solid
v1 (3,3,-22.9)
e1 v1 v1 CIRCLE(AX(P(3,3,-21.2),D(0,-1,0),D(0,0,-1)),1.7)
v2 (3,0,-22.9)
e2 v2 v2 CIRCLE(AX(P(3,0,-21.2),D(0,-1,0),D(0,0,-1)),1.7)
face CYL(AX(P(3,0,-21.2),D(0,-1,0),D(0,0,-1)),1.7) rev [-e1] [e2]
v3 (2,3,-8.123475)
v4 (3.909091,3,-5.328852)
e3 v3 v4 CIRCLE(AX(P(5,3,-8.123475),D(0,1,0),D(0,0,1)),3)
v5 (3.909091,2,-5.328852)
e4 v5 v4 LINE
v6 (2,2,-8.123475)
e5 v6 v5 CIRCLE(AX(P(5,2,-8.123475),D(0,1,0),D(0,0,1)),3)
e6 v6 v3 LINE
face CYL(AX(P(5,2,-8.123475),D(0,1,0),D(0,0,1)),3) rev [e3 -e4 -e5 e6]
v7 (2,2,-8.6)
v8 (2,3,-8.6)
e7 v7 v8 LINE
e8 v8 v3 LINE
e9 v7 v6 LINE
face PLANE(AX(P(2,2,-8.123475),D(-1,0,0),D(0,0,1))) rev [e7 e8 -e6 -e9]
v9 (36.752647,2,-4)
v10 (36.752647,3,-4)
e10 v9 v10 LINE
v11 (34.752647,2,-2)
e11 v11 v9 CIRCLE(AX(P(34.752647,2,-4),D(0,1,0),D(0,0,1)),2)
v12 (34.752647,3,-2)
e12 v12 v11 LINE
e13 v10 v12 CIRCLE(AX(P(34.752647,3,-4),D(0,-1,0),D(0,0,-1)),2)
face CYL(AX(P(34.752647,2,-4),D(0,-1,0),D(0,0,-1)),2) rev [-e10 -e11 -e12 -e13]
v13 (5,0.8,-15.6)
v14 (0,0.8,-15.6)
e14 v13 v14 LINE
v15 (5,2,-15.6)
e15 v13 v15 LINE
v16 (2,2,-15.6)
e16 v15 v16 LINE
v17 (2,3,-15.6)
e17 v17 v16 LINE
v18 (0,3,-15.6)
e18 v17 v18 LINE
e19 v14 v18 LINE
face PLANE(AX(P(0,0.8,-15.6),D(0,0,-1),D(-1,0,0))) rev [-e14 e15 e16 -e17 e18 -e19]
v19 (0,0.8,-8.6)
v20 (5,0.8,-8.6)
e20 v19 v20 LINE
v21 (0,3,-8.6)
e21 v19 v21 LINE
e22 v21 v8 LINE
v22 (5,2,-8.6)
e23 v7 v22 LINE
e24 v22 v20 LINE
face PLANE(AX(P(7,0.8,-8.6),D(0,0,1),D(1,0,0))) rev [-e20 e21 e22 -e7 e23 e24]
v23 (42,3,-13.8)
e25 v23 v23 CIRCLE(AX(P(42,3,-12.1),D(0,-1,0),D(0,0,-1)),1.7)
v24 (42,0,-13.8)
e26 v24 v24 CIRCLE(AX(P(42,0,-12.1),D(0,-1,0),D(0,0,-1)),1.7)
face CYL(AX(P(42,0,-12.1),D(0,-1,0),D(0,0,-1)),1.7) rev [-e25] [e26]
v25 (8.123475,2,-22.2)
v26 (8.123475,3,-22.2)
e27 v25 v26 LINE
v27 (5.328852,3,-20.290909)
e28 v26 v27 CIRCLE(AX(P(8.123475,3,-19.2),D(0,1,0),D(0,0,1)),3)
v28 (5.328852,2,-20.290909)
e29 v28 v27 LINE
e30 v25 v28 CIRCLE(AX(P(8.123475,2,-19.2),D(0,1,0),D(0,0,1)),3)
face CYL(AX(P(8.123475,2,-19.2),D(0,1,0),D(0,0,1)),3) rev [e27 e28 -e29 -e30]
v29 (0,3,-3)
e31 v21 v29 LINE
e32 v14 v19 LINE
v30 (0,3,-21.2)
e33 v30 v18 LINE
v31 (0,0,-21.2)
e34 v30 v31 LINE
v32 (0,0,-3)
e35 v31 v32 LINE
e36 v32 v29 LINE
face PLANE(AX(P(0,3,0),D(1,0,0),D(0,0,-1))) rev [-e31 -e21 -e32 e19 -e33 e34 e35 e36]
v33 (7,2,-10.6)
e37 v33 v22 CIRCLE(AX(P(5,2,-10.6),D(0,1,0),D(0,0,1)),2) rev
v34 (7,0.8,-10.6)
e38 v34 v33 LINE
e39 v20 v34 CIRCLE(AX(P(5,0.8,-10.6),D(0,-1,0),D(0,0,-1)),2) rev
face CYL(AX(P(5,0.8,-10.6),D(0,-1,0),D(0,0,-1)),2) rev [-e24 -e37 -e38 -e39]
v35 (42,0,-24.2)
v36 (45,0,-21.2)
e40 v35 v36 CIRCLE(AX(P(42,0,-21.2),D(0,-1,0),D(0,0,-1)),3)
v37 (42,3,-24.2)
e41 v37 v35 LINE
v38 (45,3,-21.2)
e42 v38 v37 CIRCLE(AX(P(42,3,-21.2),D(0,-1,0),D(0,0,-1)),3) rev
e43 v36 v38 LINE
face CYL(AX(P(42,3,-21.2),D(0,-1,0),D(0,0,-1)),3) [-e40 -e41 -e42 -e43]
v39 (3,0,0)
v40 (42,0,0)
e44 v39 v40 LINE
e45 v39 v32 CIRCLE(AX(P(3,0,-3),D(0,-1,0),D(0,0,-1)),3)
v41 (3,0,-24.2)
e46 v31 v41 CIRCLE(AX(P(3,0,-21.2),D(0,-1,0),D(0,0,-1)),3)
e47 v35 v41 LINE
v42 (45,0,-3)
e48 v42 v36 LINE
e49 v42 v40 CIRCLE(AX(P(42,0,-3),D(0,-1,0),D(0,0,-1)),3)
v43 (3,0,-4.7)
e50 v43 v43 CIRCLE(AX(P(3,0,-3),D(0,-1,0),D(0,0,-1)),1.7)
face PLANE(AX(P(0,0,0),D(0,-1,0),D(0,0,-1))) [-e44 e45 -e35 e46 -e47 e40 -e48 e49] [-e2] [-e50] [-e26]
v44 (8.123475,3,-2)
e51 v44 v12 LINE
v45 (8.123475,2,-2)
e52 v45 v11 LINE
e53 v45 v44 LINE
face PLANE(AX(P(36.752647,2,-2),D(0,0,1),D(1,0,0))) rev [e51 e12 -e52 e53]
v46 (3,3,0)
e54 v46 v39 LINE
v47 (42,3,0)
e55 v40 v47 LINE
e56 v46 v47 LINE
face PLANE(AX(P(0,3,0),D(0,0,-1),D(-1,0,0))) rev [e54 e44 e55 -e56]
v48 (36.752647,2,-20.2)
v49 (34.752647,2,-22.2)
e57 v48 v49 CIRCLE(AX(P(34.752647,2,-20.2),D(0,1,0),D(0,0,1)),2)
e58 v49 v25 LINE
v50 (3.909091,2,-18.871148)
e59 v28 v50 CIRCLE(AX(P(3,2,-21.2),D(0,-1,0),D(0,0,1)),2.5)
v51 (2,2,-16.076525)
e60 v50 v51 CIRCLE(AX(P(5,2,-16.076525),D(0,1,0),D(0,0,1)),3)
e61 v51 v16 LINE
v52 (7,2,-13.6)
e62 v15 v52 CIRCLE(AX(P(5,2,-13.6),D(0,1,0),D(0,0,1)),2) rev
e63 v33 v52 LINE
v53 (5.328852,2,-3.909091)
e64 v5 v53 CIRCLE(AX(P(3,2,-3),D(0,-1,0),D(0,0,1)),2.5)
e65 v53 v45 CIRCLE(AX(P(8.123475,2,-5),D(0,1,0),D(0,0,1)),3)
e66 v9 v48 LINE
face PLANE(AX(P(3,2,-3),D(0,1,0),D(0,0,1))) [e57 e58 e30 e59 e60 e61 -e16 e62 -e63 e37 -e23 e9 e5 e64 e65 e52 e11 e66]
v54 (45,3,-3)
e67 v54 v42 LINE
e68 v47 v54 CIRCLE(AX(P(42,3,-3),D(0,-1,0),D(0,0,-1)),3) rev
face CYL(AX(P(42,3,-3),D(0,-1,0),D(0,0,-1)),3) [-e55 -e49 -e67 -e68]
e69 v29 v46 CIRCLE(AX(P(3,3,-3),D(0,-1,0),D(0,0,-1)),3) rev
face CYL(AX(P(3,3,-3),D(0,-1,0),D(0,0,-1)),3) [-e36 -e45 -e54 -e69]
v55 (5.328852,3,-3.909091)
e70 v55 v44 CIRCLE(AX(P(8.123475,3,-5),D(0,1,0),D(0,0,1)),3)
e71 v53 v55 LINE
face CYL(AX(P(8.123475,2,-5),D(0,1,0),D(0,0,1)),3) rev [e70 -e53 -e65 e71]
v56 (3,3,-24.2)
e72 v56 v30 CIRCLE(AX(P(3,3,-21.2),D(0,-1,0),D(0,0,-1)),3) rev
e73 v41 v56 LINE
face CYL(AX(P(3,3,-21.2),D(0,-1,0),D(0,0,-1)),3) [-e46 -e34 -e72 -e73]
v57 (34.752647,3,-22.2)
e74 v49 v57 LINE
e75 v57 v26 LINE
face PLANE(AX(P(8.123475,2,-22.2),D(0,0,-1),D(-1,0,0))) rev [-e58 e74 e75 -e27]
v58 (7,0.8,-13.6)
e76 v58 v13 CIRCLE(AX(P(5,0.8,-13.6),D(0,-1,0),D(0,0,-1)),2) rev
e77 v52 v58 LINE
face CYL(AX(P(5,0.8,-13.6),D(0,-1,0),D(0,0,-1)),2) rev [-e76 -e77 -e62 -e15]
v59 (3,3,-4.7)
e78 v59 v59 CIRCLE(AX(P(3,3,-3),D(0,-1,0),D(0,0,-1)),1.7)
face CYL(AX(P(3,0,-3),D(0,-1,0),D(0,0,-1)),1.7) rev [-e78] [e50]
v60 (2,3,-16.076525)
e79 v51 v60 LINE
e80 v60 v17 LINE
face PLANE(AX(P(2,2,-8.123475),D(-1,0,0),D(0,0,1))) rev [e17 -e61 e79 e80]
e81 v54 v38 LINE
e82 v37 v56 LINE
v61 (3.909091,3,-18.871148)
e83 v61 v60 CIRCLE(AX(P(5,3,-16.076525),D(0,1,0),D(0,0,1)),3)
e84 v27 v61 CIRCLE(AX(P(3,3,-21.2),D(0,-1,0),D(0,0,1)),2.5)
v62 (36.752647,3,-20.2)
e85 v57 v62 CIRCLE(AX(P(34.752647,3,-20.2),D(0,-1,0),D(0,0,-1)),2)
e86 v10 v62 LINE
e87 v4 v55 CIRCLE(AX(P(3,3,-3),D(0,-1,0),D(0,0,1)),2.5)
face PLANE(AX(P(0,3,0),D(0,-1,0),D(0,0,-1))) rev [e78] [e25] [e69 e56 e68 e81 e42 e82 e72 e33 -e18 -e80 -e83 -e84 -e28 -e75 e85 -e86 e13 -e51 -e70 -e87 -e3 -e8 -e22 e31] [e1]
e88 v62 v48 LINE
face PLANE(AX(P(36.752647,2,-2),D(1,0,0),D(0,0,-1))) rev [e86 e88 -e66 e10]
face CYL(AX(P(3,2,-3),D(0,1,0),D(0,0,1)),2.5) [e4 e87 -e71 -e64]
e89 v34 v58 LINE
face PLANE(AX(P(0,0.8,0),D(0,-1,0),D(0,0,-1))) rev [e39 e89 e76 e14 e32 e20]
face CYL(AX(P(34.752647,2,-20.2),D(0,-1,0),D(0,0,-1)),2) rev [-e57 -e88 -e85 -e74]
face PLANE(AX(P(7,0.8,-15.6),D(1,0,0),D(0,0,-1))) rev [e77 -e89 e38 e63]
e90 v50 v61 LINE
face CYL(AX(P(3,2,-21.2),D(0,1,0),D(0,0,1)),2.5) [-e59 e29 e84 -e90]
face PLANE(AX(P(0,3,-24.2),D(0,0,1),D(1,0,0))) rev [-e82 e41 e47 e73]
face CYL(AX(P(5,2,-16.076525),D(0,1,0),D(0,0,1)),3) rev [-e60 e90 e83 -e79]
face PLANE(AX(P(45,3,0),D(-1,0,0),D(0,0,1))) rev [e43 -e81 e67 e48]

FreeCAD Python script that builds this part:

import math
import FreeCAD as App
import Part
import Sketcher
from FreeCAD import Vector
Q = App.Units.Quantity


def edges_at(feature, points):
    """Names of the edges that pass closest to the given points."""
    edges = feature.Shape.Edges
    near = lambda p: min(range(len(edges)), key=lambda i: edges[i].distToShape(Part.Vertex(*p))[0])
    return sorted({f"Edge{near(p) + 1}" for p in points})


def add_polygon(sketch, points):
    """Adds a closed chain of lines whose ends are joined by coincident constraints."""
    first, n = sketch.GeometryCount, len(points)
    for a, b in zip(points, points[1:] + points[:1]):
        sketch.addGeometry(Part.LineSegment(App.Vector(*a, 0), App.Vector(*b, 0)), False)
    for i in range(n):
        sketch.addConstraint(Sketcher.Constraint("Coincident", first + i, 2, first + (i + 1) % n, 1))

doc = App.newDocument("Part")
body = doc.addObject("PartDesign::Body", "Body")

sketch1 = body.newObject("Sketcher::SketchObject", "Sketch")
sketch1.AttachmentSupport = (doc.getObject("XZ_Plane"), [""])
sketch1.MapMode = "FlatFace"
add_polygon(sketch1, [(0, -24), (0, 0), (45, 0), (45, -24)])
sketch1.addConstraint(Sketcher.Constraint("Vertical", 0))
sketch1.addConstraint(Sketcher.Constraint("Horizontal", 1))
sketch1.addConstraint(Sketcher.Constraint("Vertical", 2))
sketch1.addConstraint(Sketcher.Constraint("Horizontal", 3))
sketch1.addConstraint(Sketcher.Constraint("Coincident", 0, 2, -1, 1))
sketch1.addConstraint(Sketcher.Constraint("DistanceX", 1, 1, 1, 2, Q("45 mm")))
sketch1.addConstraint(Sketcher.Constraint("DistanceY", 0, 1, 0, 2, Q("24.2 mm")))
pad1 = body.newObject("PartDesign::Pad", "Pad")
pad1.Profile = sketch1
pad1.Length = 3
pad1.Reversed = True
doc.recompute()

fillet = body.newObject("PartDesign::Fillet", "Fillet")
fillet.Base = (pad1, edges_at(pad1, [
    (0, 1.5, -24.2),
    (45, 1.5, -24.2),
    (45, 1.5, 0),
    (0, 1.5, 0),
]))
fillet.Radius = 3

sketch2 = body.newObject("Sketcher::SketchObject", "Sketch001")
sketch2.AttachmentSupport = (doc.getObject("XZ_Plane"), [""])
sketch2.MapMode = "FlatFace"
sketch2.addGeometry(Part.Circle(Vector(3, -21.2, 0), Vector(0, 0, 1), 1.7), False)
sketch2.addGeometry(Part.Circle(Vector(3, -3, 0), Vector(0, 0, 1), 1.7), False)
sketch2.addGeometry(Part.Circle(Vector(42, -12.1, 0), Vector(0, 0, 1), 1.7), False)
sketch2.addConstraint(Sketcher.Constraint("Equal", 0, 1))
sketch2.addConstraint(Sketcher.Constraint("Equal", 1, 2))
sketch2.addConstraint(Sketcher.Constraint("Vertical", 0, 3, 1, 3))
sketch2.addConstraint(Sketcher.Constraint("Diameter", 0, Q("3.4 mm")))
sketch2.addConstraint(Sketcher.Constraint("DistanceX", -1, 1, 0, 3, Q("3 mm")))
sketch2.addConstraint(Sketcher.Constraint("DistanceY", 1, 3, -1, 1, Q("3 mm")))
sketch2.addConstraint(Sketcher.Constraint("DistanceX", -1, 1, 2, 3, Q("42 mm")))
sketch2.addConstraint(Sketcher.Constraint("DistanceY", 0, 3, -1, 1, Q("21.2 mm")))
sketch2.addConstraint(Sketcher.Constraint("DistanceY", 2, 3, -1, 1, Q("12.1 mm")))
doc.recompute()
hole = body.newObject("PartDesign::Hole", "Hole")
hole.Profile = sketch2
hole.ThreadType = "None"
hole.Diameter = 3.4
hole.DepthType = "Dimension"
hole.Depth = 3
hole.DrillPoint = "Angled"
hole.DrillPointAngle = 118

sketch3 = body.newObject("Sketcher::SketchObject", "Sketch002")
sketch3.AttachmentSupport = (doc.getObject("XZ_Plane"), [""])
sketch3.MapMode = "FlatFace"
sketch3.AttachmentOffset = App.Placement(Vector(0, 0, -3), App.Rotation())
sketch3.addGeometry(Part.LineSegment(Vector(2, -16.1, 0), Vector(2, -8.1, 0)), False)
sketch3.addGeometry(Part.ArcOfCircle(Part.Circle(Vector(5, -8.1, 0), Vector(0, 0, 1), 3), math.radians(111), math.radians(180)), False)
sketch3.addGeometry(Part.ArcOfCircle(Part.Circle(Vector(3, -3, 0), Vector(0, 0, 1), 2.5), math.radians(-69), math.radians(-21)), False)
sketch3.addGeometry(Part.ArcOfCircle(Part.Circle(Vector(8.1, -5, 0), Vector(0, 0, 1), 3), math.radians(90), math.radians(159)), False)
sketch3.addGeometry(Part.LineSegment(Vector(8.1, -2, 0), Vector(36.8, -2, 0)), False)
sketch3.addGeometry(Part.LineSegment(Vector(36.8, -2, 0), Vector(36.8, -22.2, 0)), False)
sketch3.addGeometry(Part.LineSegment(Vector(36.8, -22.2, 0), Vector(8.1, -22.2, 0)), False)
sketch3.addGeometry(Part.ArcOfCircle(Part.Circle(Vector(8.1, -19.2, 0), Vector(0, 0, 1), 3), math.radians(-159), math.radians(-90)), False)
sketch3.addGeometry(Part.ArcOfCircle(Part.Circle(Vector(3, -21.2, 0), Vector(0, 0, 1), 2.5), math.radians(21), math.radians(69)), False)
sketch3.addGeometry(Part.ArcOfCircle(Part.Circle(Vector(5, -16.1, 0), Vector(0, 0, 1), 3), math.radians(180), math.radians(249)), False)
sketch3.addConstraint(Sketcher.Constraint("Tangent", 0, 2, 1, 2))
sketch3.addConstraint(Sketcher.Constraint("Tangent", 1, 1, 2, 1))
sketch3.addConstraint(Sketcher.Constraint("Tangent", 2, 2, 3, 2))
sketch3.addConstraint(Sketcher.Constraint("Tangent", 3, 1, 4, 1))
sketch3.addConstraint(Sketcher.Constraint("Coincident", 4, 2, 5, 1))
sketch3.addConstraint(Sketcher.Constraint("Coincident", 5, 2, 6, 1))
sketch3.addConstraint(Sketcher.Constraint("Tangent", 6, 2, 7, 2))
sketch3.addConstraint(Sketcher.Constraint("Tangent", 7, 1, 8, 1))
sketch3.addConstraint(Sketcher.Constraint("Tangent", 8, 2, 9, 2))
sketch3.addConstraint(Sketcher.Constraint("Tangent", 9, 1, 0, 1))
sketch3.addConstraint(Sketcher.Constraint("Vertical", 0))
sketch3.addConstraint(Sketcher.Constraint("Horizontal", 4))
sketch3.addConstraint(Sketcher.Constraint("Vertical", 5))
sketch3.addConstraint(Sketcher.Constraint("Horizontal", 6))
sketch3.addConstraint(Sketcher.Constraint("Equal", 1, 3))
sketch3.addConstraint(Sketcher.Constraint("Equal", 3, 7))
sketch3.addConstraint(Sketcher.Constraint("Equal", 2, 8))
sketch3.addConstraint(Sketcher.Constraint("Equal", 7, 9))
sketch3.addConstraint(Sketcher.Constraint("Vertical", 3, 3, 7, 3))
sketch3.addConstraint(Sketcher.Constraint("Vertical", 2, 3, 8, 3))
sketch3.addConstraint(Sketcher.Constraint("Radius", 1, Q("3 mm")))
sketch3.addConstraint(Sketcher.Constraint("Radius", 2, Q("2.5 mm")))
sketch3.addConstraint(Sketcher.Constraint("DistanceY", 5, 2, 5, 1, Q("20.2 mm")))
sketch3.addConstraint(Sketcher.Constraint("DistanceX", -1, 1, 1, 3, Q("5 mm")))
sketch3.addConstraint(Sketcher.Constraint("DistanceX", -1, 1, 2, 3, Q("3 mm")))
sketch3.addConstraint(Sketcher.Constraint("DistanceY", 2, 3, -1, 1, Q("3 mm")))
sketch3.addConstraint(Sketcher.Constraint("DistanceY", 3, 3, -1, 1, Q("5 mm")))
sketch3.addConstraint(Sketcher.Constraint("DistanceX", 4, 1, 4, 2, Q("28.629172 mm")))
pocket1 = body.newObject("PartDesign::Pocket", "Pocket")
pocket1.Profile = sketch3
pocket1.Length = 1
pocket1.Reversed = True
doc.recompute()

fillet2 = body.newObject("PartDesign::Fillet", "Fillet001")
fillet2.Base = (pocket1, edges_at(pocket1, [(36.753, 2.5, -22.2), (36.753, 2.5, -2)]))
fillet2.Radius = 2

sketch4 = body.newObject("Sketcher::SketchObject", "Sketch003")
sketch4.AttachmentSupport = (doc.getObject("XZ_Plane"), [""])
sketch4.MapMode = "FlatFace"
sketch4.AttachmentOffset = App.Placement(Vector(0, 0, -3), App.Rotation())
add_polygon(sketch4, [(0, -16), (0, -9), (7, -9), (7, -16)])
sketch4.addConstraint(Sketcher.Constraint("Vertical", 0))
sketch4.addConstraint(Sketcher.Constraint("Horizontal", 1))
sketch4.addConstraint(Sketcher.Constraint("Vertical", 2))
sketch4.addConstraint(Sketcher.Constraint("Horizontal", 3))
sketch4.addConstraint(Sketcher.Constraint("PointOnObject", 0, 2, -2))
sketch4.addConstraint(Sketcher.Constraint("Equal", 3, 0))
sketch4.addConstraint(Sketcher.Constraint("DistanceX", 1, 1, 1, 2, Q("7 mm")))
sketch4.addConstraint(Sketcher.Constraint("DistanceY", 0, 2, -1, 1, Q("8.6 mm")))
pocket2 = body.newObject("PartDesign::Pocket", "Pocket001")
pocket2.Profile = sketch4
pocket2.Length = 2.2
pocket2.Reversed = True
doc.recompute()

fillet3 = body.newObject("PartDesign::Fillet", "Fillet002")
fillet3.Base = (pocket2, edges_at(pocket2, [(7, 1.4, -8.6), (7, 1.4, -15.6)]))
fillet3.Radius = 2

doc.recompute()
